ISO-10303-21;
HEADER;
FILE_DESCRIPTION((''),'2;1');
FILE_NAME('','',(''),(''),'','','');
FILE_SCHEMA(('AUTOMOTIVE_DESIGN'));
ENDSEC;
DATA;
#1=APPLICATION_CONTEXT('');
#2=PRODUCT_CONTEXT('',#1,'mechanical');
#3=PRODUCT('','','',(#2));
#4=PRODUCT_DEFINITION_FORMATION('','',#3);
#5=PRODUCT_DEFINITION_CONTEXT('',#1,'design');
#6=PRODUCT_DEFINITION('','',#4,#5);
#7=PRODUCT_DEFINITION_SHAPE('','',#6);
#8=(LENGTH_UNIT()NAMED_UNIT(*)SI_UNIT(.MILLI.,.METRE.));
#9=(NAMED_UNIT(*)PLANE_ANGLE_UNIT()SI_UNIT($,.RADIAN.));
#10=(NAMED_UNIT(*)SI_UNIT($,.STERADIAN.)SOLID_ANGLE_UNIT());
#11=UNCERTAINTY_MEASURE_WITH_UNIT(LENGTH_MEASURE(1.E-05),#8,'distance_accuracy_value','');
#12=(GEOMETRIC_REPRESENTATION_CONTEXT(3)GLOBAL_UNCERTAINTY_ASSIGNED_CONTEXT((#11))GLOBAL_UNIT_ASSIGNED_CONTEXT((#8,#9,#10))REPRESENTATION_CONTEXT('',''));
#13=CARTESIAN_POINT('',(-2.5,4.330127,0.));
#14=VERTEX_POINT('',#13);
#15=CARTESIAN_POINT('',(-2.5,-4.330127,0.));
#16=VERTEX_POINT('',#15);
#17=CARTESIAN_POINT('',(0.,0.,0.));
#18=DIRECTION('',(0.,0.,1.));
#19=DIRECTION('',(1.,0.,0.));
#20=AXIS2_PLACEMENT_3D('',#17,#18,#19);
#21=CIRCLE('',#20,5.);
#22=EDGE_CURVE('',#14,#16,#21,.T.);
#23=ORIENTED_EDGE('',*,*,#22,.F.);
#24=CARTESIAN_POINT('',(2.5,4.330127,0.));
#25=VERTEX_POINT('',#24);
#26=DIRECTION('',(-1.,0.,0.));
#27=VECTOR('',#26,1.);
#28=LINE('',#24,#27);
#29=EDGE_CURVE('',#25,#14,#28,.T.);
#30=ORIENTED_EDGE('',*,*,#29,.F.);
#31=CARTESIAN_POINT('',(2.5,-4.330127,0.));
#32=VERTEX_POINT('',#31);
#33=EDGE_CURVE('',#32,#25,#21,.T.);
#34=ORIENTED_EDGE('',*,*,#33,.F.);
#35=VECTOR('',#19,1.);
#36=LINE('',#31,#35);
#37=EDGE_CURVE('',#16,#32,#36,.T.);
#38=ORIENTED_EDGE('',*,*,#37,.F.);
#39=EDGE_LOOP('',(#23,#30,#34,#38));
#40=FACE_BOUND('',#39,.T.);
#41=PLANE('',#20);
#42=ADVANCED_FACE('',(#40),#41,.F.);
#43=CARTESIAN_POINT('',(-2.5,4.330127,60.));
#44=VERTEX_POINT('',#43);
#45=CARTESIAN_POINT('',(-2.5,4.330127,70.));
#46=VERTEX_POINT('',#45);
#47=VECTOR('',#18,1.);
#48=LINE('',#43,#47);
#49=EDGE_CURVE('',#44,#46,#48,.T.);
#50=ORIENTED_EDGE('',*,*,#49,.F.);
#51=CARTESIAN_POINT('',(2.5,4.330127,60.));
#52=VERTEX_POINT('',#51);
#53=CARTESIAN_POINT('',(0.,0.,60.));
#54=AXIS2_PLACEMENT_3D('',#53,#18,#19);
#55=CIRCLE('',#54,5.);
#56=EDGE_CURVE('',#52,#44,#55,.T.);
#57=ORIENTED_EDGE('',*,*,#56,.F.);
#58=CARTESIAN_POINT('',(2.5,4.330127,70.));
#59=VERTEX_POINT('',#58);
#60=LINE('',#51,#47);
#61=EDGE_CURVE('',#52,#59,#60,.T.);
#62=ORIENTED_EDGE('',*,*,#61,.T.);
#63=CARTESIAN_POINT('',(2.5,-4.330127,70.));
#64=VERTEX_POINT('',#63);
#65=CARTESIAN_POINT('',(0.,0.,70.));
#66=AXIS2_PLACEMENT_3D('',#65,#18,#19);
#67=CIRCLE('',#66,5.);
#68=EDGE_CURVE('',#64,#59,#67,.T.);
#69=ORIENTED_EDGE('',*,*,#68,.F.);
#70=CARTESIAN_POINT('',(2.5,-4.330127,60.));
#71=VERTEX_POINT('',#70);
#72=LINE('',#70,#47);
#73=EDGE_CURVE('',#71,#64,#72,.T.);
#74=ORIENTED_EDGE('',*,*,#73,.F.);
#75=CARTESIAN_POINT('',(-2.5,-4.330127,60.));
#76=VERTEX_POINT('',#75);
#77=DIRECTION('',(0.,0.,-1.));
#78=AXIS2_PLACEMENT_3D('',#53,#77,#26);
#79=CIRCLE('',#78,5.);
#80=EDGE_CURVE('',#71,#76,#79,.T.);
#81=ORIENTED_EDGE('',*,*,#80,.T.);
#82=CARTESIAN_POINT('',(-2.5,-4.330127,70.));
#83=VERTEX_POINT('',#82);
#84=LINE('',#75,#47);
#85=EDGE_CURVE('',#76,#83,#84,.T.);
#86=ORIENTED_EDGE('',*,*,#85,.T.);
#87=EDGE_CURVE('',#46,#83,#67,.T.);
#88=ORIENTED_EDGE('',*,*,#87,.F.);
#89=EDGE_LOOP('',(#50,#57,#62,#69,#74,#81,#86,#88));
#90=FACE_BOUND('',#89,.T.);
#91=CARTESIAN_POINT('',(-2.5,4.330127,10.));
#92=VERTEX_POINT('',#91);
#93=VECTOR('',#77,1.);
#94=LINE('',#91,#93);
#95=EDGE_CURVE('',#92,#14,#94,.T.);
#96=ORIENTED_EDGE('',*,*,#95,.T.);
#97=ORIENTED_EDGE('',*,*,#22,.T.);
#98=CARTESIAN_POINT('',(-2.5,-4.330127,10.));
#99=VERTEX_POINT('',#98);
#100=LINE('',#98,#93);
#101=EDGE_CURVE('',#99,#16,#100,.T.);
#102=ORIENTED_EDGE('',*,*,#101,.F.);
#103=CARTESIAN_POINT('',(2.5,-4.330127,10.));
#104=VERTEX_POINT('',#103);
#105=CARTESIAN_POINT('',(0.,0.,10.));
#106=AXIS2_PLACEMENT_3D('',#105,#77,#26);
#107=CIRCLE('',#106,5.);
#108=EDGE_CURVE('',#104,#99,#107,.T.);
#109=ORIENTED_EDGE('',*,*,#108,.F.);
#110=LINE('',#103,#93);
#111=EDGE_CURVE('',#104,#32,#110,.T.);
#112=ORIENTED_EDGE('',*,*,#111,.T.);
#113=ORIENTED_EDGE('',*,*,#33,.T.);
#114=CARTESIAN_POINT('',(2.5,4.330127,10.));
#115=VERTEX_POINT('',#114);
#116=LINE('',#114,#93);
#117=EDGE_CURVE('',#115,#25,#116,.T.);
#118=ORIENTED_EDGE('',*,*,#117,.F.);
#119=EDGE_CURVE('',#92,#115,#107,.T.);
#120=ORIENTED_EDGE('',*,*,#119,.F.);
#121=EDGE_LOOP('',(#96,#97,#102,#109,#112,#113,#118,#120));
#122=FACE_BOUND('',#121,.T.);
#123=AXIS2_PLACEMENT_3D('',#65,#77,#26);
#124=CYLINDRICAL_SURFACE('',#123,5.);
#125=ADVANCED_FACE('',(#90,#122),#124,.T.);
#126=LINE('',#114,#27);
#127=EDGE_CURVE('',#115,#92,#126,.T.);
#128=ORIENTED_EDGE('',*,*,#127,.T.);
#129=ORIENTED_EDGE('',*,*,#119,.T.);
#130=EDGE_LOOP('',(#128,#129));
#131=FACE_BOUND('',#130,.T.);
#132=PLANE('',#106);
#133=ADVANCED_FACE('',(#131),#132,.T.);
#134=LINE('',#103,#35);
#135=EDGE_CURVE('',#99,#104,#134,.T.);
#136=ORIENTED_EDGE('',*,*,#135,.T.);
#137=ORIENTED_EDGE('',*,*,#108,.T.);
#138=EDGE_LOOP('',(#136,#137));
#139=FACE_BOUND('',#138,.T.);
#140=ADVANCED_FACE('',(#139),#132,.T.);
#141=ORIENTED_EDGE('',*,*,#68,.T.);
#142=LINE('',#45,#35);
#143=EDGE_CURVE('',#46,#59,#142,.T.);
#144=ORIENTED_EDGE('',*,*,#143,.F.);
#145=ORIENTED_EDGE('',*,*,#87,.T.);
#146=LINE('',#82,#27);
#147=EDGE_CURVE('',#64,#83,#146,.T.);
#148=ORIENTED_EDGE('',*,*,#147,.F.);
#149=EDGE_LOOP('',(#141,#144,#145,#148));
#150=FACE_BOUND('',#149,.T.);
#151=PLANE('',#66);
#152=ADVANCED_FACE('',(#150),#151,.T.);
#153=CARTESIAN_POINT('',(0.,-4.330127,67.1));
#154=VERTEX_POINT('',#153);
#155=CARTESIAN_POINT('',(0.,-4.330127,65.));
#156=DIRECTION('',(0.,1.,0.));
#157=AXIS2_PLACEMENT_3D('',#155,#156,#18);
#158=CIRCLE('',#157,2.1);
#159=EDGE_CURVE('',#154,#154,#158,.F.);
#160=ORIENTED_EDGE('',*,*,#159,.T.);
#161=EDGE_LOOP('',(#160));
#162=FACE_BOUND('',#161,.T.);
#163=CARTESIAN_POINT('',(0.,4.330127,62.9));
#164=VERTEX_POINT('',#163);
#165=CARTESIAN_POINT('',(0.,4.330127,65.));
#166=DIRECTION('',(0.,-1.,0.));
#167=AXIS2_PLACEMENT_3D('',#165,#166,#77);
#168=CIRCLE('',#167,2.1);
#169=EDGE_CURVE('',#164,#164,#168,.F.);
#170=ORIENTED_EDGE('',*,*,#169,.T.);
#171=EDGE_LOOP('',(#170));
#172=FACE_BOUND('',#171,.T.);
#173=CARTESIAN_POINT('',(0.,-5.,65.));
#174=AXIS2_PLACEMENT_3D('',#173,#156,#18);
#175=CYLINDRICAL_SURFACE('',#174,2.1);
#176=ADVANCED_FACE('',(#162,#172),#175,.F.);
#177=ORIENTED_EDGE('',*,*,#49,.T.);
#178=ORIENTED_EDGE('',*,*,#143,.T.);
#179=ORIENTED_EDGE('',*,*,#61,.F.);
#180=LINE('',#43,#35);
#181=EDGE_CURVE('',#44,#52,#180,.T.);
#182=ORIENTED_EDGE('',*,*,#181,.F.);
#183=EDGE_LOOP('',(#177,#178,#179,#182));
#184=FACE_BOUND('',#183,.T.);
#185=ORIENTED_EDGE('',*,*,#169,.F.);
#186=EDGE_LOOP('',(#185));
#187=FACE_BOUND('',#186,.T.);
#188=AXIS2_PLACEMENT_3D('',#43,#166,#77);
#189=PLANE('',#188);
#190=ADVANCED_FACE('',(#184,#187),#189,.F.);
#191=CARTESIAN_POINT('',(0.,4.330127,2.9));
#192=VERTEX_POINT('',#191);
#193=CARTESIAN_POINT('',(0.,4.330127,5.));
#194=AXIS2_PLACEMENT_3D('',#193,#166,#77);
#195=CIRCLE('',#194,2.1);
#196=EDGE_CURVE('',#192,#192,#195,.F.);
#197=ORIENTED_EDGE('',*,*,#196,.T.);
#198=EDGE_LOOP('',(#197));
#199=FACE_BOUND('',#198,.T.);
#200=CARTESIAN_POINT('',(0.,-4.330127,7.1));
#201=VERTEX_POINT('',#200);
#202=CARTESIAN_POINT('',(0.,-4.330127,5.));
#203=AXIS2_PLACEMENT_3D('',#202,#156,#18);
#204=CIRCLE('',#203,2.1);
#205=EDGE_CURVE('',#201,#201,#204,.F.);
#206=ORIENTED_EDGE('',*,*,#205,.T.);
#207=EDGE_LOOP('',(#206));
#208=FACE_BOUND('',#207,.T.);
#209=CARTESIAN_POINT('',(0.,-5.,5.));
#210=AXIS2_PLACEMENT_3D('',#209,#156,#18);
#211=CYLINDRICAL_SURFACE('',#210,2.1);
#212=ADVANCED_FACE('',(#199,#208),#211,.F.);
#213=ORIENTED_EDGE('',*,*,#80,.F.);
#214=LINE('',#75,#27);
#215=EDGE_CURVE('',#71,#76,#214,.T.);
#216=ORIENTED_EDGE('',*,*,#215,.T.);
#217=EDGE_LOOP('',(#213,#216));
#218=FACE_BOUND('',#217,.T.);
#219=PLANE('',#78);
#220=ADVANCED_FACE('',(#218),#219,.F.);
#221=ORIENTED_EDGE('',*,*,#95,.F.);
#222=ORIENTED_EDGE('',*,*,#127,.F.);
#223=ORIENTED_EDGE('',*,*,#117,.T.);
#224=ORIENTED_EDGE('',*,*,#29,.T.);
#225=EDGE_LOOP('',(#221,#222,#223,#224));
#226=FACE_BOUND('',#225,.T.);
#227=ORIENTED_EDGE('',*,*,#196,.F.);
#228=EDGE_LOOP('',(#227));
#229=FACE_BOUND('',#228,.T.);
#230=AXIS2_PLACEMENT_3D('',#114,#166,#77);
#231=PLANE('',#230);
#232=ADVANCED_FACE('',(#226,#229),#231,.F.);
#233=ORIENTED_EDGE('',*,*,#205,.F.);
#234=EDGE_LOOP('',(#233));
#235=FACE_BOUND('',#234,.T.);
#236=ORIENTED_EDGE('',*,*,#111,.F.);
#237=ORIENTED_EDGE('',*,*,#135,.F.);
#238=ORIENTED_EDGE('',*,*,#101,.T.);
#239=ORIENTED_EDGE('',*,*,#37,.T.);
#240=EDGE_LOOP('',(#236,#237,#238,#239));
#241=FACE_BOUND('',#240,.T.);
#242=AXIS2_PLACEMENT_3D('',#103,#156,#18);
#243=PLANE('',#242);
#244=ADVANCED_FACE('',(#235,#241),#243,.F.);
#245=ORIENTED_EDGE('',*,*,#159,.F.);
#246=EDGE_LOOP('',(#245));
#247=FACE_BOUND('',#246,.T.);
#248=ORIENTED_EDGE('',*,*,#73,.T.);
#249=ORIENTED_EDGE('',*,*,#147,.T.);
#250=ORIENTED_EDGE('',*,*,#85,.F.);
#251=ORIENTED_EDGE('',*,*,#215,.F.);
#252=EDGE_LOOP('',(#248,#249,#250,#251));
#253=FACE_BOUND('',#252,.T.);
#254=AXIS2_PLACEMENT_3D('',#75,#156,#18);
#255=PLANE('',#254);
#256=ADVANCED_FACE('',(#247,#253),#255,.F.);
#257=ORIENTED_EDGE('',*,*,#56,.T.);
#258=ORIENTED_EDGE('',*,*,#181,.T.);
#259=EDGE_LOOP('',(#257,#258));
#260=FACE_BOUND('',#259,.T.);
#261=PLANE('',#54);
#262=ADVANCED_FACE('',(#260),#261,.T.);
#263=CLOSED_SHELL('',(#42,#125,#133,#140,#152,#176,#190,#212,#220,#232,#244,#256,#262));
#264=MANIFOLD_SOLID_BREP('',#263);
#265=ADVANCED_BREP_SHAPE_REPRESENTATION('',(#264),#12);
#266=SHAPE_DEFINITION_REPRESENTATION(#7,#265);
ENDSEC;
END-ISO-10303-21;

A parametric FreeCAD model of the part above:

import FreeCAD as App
import Part
import Sketcher

V = App.Vector


def add_polygon(sketch, points):
    """Adds a closed chain of lines whose ends are joined by coincident constraints."""
    first, n = sketch.GeometryCount, len(points)
    for a, b in zip(points, points[1:] + points[:1]):
        sketch.addGeometry(Part.LineSegment(App.Vector(*a, 0), App.Vector(*b, 0)), False)
    for i in range(n):
        sketch.addConstraint(Sketcher.Constraint("Coincident", first + i, 2, first + (i + 1) % n, 1))

doc = App.newDocument("Part")
body = doc.addObject("PartDesign::Body", "Body")

# Sketch on XY plane
sketch1 = body.newObject("Sketcher::SketchObject", "Sketch")
sketch1.AttachmentSupport = (doc.getObject("XY_Plane"), [""])
sketch1.MapMode = "FlatFace"
sketch1.addGeometry(Part.Circle(V(0, 0, 0), V(0, 0, 1), 5), False)
sketch1.addConstraint([
    Sketcher.Constraint("Coincident", 0, 3, -1, 1),
    Sketcher.Constraint("Diameter", 0, 10.0),
])
pad1 = body.newObject("PartDesign::Pad", "Pad")
pad1.Profile = sketch1
pad1.Length = 70

# Sketch on XZ plane
sketch2 = body.newObject("Sketcher::SketchObject", "Sketch001")
sketch2.AttachmentSupport = (doc.getObject("XZ_Plane"), [""])
sketch2.MapMode = "FlatFace"
sketch2.addGeometry([
    Part.Circle(V(0, 5, 0), V(0, 0, 1), 2.1),
    Part.Circle(V(0, 65, 0), V(0, 0, 1), 2.1),
], False)
sketch2.addConstraint([
    Sketcher.Constraint("Equal", 0, 1),
    Sketcher.Constraint("PointOnObject", 0, 3, -2),
    Sketcher.Constraint("PointOnObject", 1, 3, -2),
    Sketcher.Constraint("Diameter", 0, 4.2),
    Sketcher.Constraint("DistanceY", -1, 1, 0, 3, 5.0),
    Sketcher.Constraint("DistanceY", -1, 1, 1, 3, 65.0),
])
pocket1 = body.newObject("PartDesign::Pocket", "Pocket")
pocket1.Profile = sketch2
pocket1.Length = 10
pocket1.Midplane = True

# Sketch on XY plane
sketch3 = body.newObject("Sketcher::SketchObject", "Sketch002")
sketch3.AttachmentSupport = (doc.getObject("XY_Plane"), [""])
sketch3.MapMode = "FlatFace"
sketch3.AttachmentOffset = App.Placement(V(0, 0, 70), App.Rotation())
add_polygon(sketch3, [(-2, 14), (-2, 4), (2, 4), (2, 14)])  # lines 0-3
add_polygon(sketch3, [(-2, -4), (-2, -14), (2, -14), (2, -4)])  # lines 4-7
sketch3.addConstraint([
    Sketcher.Constraint("Vertical", 0),
    Sketcher.Constraint("Horizontal", 1),
    Sketcher.Constraint("Vertical", 2),
    Sketcher.Constraint("Horizontal", 3),
    Sketcher.Constraint("Vertical", 4),
    Sketcher.Constraint("Horizontal", 5),
    Sketcher.Constraint("Vertical", 6),
    Sketcher.Constraint("Horizontal", 7),
    Sketcher.Constraint("Symmetric", 2, 2, 4, 2, -1, 1),
    Sketcher.Constraint("Symmetric", 0, 2, 6, 2, -1, 1),
    Sketcher.Constraint("Vertical", 3, 2, 4, 2),
    Sketcher.Constraint("DistanceX", 1, 1, 1, 2, 5.0),
    Sketcher.Constraint("DistanceY", 0, 2, 0, 1, 10.0),
    Sketcher.Constraint("DistanceY", -1, 1, 0, 2, 4.330127),
])
pocket2 = body.newObject("PartDesign::Pocket", "Pocket001")
pocket2.Profile = sketch3
pocket2.Length = 10

# Sketch on XY plane
sketch4 = body.newObject("Sketcher::SketchObject", "Sketch003")
sketch4.AttachmentSupport = (doc.getObject("XY_Plane"), [""])
sketch4.MapMode = "FlatFace"
add_polygon(sketch4, [(2, 14), (2, 4), (-2, 4), (-2, 14)])  # lines 0-3
add_polygon(sketch4, [(2, -4), (2, -14), (-2, -14), (-2, -4)])  # lines 4-7
sketch4.addConstraint([
    Sketcher.Constraint("Vertical", 0),
    Sketcher.Constraint("Horizontal", 1),
    Sketcher.Constraint("Vertical", 2),
    Sketcher.Constraint("Horizontal", 3),
    Sketcher.Constraint("Vertical", 4),
    Sketcher.Constraint("Horizontal", 5),
    Sketcher.Constraint("Vertical", 6),
    Sketcher.Constraint("Horizontal", 7),
    Sketcher.Constraint("Symmetric", 2, 2, 4, 2, -1, 1),
    Sketcher.Constraint("Symmetric", 0, 2, 6, 2, -1, 1),
    Sketcher.Constraint("Vertical", 3, 2, 4, 2),
    Sketcher.Constraint("DistanceX", 1, 2, 1, 1, 5.0),
    Sketcher.Constraint("DistanceY", 0, 2, 0, 1, 10.0),
    Sketcher.Constraint("DistanceY", -1, 1, 0, 2, 4.330127),
])
pocket3 = body.newObject("PartDesign::Pocket", "Pocket002")
pocket3.Profile = sketch4
pocket3.Length = 10
pocket3.Reversed = True

doc.recompute()
